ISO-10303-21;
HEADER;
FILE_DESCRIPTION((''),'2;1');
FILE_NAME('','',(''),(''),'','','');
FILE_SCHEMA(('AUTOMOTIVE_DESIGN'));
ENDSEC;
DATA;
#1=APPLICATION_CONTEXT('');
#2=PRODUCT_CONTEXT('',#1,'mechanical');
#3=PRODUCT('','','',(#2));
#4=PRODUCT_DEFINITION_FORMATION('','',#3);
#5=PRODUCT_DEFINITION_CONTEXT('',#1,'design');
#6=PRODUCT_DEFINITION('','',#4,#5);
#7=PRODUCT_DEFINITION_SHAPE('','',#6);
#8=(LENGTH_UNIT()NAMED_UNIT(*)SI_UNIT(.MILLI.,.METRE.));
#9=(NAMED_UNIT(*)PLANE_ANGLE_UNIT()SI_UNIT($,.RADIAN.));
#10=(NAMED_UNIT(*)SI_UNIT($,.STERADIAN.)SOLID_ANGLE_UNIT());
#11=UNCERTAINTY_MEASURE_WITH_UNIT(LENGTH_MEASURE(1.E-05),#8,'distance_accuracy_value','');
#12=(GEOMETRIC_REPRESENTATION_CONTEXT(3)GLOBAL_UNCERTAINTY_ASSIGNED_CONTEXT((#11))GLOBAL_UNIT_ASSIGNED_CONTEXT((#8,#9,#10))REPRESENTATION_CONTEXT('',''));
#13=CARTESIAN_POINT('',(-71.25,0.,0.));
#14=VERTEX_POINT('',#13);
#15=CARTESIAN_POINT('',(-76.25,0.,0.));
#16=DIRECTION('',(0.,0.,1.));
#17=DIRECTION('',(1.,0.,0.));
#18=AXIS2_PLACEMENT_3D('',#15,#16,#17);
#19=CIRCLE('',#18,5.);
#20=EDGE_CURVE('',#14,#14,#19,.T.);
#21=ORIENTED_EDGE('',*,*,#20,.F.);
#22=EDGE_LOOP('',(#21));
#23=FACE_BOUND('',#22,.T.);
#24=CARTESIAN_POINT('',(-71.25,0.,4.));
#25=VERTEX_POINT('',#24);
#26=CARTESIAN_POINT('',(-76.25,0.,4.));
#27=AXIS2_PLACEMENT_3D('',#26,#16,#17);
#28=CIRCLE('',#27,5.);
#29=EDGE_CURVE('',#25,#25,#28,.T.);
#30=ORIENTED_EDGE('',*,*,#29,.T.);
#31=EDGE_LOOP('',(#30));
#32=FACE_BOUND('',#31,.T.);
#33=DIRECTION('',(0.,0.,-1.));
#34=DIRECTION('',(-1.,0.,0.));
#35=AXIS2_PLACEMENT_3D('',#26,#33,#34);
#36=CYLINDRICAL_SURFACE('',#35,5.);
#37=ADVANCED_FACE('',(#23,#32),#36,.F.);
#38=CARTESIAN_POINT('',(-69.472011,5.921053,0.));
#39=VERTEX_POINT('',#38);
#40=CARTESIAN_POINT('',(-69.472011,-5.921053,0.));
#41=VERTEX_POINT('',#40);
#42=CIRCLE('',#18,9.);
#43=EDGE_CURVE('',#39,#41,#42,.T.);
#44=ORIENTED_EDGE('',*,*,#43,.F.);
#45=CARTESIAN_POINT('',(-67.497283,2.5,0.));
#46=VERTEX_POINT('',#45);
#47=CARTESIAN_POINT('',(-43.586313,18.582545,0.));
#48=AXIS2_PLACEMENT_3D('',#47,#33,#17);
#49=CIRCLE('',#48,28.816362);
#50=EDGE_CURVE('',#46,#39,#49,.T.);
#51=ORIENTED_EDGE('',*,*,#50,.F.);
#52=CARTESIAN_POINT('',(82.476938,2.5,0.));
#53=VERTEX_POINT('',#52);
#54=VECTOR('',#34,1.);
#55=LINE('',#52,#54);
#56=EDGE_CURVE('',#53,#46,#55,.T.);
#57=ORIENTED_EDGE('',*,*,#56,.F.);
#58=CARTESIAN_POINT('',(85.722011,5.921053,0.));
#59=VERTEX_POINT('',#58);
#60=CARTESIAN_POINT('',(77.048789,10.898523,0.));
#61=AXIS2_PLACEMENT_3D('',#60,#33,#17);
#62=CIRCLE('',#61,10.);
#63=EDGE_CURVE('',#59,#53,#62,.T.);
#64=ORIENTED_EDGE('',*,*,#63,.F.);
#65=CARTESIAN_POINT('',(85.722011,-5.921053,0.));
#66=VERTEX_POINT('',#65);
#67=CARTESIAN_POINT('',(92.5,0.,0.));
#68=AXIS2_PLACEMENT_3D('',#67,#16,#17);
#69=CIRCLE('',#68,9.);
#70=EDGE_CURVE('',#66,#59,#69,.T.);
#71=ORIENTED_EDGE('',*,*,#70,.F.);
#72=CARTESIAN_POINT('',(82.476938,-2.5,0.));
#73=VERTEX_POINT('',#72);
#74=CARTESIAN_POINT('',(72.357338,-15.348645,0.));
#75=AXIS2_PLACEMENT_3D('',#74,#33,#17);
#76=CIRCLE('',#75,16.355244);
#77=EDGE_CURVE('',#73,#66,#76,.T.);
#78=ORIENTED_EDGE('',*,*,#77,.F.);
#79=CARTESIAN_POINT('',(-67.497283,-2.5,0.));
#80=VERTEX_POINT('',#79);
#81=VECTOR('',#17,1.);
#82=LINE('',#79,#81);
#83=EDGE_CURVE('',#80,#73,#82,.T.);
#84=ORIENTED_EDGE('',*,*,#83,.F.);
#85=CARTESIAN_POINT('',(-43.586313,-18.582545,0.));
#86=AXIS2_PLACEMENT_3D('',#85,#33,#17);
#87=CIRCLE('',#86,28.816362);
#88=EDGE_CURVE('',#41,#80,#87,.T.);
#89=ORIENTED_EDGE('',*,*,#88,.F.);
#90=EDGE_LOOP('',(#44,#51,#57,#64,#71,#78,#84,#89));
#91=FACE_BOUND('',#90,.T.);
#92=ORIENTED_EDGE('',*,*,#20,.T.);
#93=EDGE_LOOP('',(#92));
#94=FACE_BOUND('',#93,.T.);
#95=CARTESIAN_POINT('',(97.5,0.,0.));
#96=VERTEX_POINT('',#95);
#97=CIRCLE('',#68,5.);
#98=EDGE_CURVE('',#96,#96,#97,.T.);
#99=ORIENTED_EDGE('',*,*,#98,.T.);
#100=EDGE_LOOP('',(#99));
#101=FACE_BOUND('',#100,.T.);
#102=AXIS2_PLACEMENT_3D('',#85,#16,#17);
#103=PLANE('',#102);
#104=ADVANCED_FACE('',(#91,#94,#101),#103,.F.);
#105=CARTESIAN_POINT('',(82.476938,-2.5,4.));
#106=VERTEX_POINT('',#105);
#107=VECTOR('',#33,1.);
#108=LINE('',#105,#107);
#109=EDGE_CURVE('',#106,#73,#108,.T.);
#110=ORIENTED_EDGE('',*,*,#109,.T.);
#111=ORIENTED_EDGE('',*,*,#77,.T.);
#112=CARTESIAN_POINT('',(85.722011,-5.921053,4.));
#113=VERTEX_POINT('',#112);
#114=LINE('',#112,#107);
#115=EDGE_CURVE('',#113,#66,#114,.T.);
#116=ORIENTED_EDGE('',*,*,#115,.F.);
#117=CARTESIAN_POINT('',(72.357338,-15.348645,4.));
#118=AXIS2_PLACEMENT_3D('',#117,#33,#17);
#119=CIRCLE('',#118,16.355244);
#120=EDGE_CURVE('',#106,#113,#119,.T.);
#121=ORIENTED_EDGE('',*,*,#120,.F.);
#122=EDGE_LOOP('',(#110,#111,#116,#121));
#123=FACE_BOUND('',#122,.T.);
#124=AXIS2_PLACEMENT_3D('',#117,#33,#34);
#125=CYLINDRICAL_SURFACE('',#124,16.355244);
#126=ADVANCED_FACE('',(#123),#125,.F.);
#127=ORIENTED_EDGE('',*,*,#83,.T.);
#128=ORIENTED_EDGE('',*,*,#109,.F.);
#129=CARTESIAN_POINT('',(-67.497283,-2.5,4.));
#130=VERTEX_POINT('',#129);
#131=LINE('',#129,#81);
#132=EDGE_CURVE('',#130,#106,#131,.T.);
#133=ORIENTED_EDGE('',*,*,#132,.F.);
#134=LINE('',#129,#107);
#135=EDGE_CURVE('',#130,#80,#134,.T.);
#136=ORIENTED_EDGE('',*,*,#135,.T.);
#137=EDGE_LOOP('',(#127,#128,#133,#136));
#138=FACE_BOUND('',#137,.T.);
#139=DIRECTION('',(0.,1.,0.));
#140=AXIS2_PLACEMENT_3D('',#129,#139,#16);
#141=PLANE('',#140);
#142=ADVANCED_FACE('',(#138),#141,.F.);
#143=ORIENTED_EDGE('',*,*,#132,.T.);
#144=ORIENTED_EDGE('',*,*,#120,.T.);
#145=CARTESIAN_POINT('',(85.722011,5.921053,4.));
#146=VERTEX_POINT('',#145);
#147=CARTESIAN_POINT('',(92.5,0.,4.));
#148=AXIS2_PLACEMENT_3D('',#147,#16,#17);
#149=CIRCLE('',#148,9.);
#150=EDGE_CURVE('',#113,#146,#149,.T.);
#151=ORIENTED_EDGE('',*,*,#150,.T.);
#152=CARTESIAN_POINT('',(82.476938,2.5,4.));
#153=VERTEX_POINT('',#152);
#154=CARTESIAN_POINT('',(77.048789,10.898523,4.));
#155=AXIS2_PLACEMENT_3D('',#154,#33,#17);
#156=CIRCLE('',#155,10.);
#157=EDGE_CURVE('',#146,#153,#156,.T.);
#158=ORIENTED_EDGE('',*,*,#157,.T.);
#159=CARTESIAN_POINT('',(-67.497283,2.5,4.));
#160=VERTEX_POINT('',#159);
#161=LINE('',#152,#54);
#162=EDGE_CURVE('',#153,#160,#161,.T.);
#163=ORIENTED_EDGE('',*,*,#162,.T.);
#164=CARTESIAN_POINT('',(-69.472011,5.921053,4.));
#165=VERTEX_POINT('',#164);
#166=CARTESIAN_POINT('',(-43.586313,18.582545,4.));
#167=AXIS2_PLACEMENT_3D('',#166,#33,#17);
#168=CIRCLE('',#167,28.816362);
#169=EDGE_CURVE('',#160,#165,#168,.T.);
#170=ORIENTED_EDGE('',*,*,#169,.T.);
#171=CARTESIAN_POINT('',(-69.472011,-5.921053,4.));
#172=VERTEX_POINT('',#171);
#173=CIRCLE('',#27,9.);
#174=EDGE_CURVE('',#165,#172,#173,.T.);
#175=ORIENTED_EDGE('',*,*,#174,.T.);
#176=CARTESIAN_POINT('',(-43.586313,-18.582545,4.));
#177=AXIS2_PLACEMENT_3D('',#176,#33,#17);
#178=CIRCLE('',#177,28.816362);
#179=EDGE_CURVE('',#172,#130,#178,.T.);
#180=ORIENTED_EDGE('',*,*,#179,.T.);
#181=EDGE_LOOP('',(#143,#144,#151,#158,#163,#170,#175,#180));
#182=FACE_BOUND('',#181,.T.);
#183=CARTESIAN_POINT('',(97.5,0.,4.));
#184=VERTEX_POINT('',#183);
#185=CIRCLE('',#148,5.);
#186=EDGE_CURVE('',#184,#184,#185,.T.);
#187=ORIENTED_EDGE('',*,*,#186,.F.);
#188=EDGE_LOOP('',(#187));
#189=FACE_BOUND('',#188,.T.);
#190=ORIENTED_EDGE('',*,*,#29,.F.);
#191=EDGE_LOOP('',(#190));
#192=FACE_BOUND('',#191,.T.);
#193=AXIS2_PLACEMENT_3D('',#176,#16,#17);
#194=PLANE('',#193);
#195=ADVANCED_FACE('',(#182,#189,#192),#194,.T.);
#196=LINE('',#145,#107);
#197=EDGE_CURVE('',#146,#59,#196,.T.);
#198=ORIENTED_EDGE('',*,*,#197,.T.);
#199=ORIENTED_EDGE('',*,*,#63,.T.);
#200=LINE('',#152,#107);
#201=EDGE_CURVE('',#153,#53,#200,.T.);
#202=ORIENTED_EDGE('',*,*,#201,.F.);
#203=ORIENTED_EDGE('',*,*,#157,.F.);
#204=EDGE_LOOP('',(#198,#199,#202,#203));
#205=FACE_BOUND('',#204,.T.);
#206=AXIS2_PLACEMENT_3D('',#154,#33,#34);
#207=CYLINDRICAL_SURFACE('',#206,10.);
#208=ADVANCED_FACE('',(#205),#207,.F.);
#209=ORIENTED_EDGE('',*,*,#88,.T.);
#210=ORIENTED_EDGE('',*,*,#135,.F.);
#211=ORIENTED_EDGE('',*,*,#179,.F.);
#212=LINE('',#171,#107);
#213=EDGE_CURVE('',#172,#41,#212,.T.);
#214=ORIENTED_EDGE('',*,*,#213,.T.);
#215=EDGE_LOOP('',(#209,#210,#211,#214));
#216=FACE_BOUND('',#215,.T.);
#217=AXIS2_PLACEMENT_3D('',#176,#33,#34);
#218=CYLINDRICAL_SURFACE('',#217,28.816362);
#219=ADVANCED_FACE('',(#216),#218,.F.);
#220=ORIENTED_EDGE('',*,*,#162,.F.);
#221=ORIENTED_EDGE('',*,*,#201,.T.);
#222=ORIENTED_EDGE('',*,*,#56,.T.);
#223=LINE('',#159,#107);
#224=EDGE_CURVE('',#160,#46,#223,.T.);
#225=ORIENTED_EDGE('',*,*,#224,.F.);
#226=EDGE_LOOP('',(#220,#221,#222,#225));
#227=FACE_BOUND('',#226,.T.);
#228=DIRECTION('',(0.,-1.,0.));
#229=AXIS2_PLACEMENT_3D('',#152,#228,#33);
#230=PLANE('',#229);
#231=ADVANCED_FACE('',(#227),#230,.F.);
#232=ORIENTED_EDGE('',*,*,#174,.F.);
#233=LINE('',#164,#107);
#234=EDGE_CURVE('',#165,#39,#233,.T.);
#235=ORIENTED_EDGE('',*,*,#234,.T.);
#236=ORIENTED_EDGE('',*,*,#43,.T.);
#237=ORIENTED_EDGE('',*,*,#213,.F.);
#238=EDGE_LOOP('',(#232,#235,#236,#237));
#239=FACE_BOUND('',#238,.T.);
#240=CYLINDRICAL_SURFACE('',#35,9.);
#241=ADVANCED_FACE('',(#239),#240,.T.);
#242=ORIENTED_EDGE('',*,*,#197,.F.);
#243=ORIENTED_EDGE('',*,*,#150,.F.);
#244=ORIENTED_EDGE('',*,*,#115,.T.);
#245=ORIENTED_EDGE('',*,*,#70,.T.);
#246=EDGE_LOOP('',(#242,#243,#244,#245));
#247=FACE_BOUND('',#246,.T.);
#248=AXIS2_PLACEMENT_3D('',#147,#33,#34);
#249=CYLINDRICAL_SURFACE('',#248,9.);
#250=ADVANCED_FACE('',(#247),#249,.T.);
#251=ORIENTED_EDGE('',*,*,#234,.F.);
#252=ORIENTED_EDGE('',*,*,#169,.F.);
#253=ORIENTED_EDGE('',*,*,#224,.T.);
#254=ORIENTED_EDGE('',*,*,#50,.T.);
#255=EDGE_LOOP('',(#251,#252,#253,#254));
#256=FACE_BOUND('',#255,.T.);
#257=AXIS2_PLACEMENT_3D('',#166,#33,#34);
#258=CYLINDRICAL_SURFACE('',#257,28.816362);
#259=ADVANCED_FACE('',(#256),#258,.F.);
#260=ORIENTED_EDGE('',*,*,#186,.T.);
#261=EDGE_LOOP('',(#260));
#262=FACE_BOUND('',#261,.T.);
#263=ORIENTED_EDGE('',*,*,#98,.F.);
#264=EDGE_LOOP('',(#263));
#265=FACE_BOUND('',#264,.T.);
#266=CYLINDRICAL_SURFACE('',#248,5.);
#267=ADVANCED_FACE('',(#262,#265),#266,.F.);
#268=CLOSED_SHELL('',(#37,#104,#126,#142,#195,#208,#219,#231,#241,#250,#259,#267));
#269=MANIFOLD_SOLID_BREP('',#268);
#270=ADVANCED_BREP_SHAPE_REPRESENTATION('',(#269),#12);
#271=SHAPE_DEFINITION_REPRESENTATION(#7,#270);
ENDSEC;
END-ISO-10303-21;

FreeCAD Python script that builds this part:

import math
import FreeCAD as App
import Part
import Sketcher

V = App.Vector

doc = App.newDocument("Part")
body = doc.addObject("PartDesign::Body", "Body")

sketch1 = body.newObject("Sketcher::SketchObject", "Sketch")
sketch1.AttachmentSupport = (doc.getObject("XY_Plane"), [""])
sketch1.MapMode = "FlatFace"
sketch1.addGeometry([
    Part.LineSegment(V(-67.5, -2.5, 0), V(82.5, -2.5, 0)),
    Part.ArcOfCircle(Part.Circle(V(72.4, -15.3, 0), V(0, 0, 1), 16.4), math.radians(35.2), math.radians(51.78)),
    Part.ArcOfCircle(Part.Circle(V(92.5, 0, 0), V(0, 0, 1), 9), math.radians(-139), math.radians(139)),
    Part.ArcOfCircle(Part.Circle(V(77, 10.9, 0), V(0, 0, 1), 10), math.radians(-57), math.radians(-30)),
    Part.LineSegment(V(82.5, 2.5, 0), V(-67.5, 2.5, 0)),
    Part.ArcOfCircle(Part.Circle(V(-43.6, 18.6, 0), V(0, 0, 1), 28.8), math.radians(-153.94), math.radians(-146.08)),
    Part.ArcOfCircle(Part.Circle(V(-76.2, 0, 0), V(0, 0, 1), 9), math.radians(41), math.radians(319)),
    Part.ArcOfCircle(Part.Circle(V(-43.6, -18.6, 0), V(0, 0, 1), 28.8), math.radians(146.08), math.radians(153.94)),
    Part.Circle(V(-76.2, 0, 0), V(0, 0, 1), 5),
    Part.Circle(V(92.5, 0, 0), V(0, 0, 1), 5),
], False)
sketch1.addConstraint([
    Sketcher.Constraint("Coincident", 0, 2, 1, 2),
    Sketcher.Constraint("Coincident", 1, 1, 2, 1),
    Sketcher.Constraint("Coincident", 2, 2, 3, 2),
    Sketcher.Constraint("Coincident", 3, 1, 4, 1),
    Sketcher.Constraint("Coincident", 4, 2, 5, 2),
    Sketcher.Constraint("Coincident", 5, 1, 6, 1),
    Sketcher.Constraint("Coincident", 6, 2, 7, 2),
    Sketcher.Constraint("Coincident", 7, 1, 0, 1),
    Sketcher.Constraint("Horizontal", 0),
    Sketcher.Constraint("Horizontal", 4),
    Sketcher.Constraint("Coincident", 8, 3, 6, 3),
    Sketcher.Constraint("Coincident", 9, 3, 2, 3),
    Sketcher.Constraint("Equal", 2, 6),
    Sketcher.Constraint("Equal", 5, 7),
    Sketcher.Constraint("Equal", 8, 9),
    Sketcher.Constraint("Symmetric", 5, 3, 7, 3, -1),
    Sketcher.Constraint("Symmetric", 1, 1, 2, 2, -1),
    Sketcher.Constraint("Symmetric", 0, 2, 3, 1, -1),
    Sketcher.Constraint("PointOnObject", 6, 3, -1),
    Sketcher.Constraint("Horizontal", 2, 2, 5, 1),
    Sketcher.Constraint("Diameter", 8, 10.0),
    Sketcher.Constraint("Radius", 2, 9.0),
    Sketcher.Constraint("Radius", 3, 10.0),
    Sketcher.Constraint("DistanceY", 0, 2, 3, 1, 5.0),
    Sketcher.Constraint("DistanceX", -1, 1, 2, 3, 92.5),
    Sketcher.Constraint("DistanceX", 6, 3, -1, 1, 76.25),
    Sketcher.Constraint("Radius", 1, 16.355244),
    Sketcher.Constraint("Radius", 5, 28.816362),
    Sketcher.Constraint("DistanceX", 0, 1, 0, 2, 149.974221),
    Sketcher.Constraint("DistanceX", 5, 3, 3, 3, 120.635102),
    Sketcher.Constraint("DistanceY", 7, 3, 1, 3, 3.233899),
])
pad1 = body.newObject("PartDesign::Pad", "Pad")
pad1.Profile = sketch1
pad1.Length = 4

doc.recompute()
